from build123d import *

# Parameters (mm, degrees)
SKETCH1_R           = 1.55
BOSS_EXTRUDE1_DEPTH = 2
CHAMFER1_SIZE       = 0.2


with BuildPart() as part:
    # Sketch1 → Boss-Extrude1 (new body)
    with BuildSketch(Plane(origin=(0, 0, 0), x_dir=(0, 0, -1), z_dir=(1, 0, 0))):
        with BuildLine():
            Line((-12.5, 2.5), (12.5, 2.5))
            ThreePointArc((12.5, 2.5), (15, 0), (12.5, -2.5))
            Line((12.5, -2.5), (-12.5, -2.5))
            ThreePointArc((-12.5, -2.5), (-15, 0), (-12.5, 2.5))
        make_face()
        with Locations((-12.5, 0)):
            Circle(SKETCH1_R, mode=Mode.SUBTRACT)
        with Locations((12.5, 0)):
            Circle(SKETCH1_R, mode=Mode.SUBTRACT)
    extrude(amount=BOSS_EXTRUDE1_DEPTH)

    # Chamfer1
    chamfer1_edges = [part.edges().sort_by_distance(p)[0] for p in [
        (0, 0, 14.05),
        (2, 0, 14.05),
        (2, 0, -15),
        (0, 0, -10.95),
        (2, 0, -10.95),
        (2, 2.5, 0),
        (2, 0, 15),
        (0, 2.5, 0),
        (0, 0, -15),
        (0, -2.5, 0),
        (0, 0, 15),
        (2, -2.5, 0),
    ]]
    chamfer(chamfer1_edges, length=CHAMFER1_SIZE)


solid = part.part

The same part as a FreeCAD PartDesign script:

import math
import FreeCAD as App
import Part
import Sketcher

V = App.Vector
Q = App.Units.Quantity


def edges_at(feature, points):
    """Names of the edges that pass closest to the given points."""
    edges = feature.Shape.Edges
    near = lambda p: min(range(len(edges)), key=lambda i: edges[i].distToShape(Part.Vertex(*p))[0])
    return sorted({f"Edge{near(p) + 1}" for p in points})

doc = App.newDocument("Part")
params = doc.addObject("Spreadsheet::Sheet", "Params")
for row, (alias, value) in enumerate([
    ("sketch1_diameter", "3.1 mm"),
    ("sketch1_radius", "2.5 mm"),
    ("sketch1_height", "25 mm"),
    ("pad1_length", "2 mm"),
    ("chamfer_size", "0.2 mm"),
], start=1):
    params.set(f"A{row}", alias)
    params.set(f"B{row}", "=" + value)
    params.setAlias(f"B{row}", alias)

body = doc.addObject("PartDesign::Body", "Body")

# Sketch on YZ plane
sketch1 = body.newObject("Sketcher::SketchObject", "Sketch")
sketch1.AttachmentSupport = (doc.getObject("YZ_Plane"), [""])
sketch1.MapMode = "FlatFace"
sketch1.addGeometry([
    Part.LineSegment(V(2.5, -12.5, 0), V(2.5, 12.5, 0)),  # 0
    Part.ArcOfCircle(Part.Circle(V(0, 12.5, 0), V(0, 0, 1), 2.5), math.radians(0), math.radians(180)),  # 1
    Part.LineSegment(V(-2.5, 12.5, 0), V(-2.5, -12.5, 0)),  # 2
    Part.ArcOfCircle(Part.Circle(V(0, -12.5, 0), V(0, 0, 1), 2.5), math.radians(180), math.radians(360)),  # 3
    Part.Circle(V(0, -12.5, 0), V(0, 0, 1), 1.6),  # 4
    Part.Circle(V(0, 12.5, 0), V(0, 0, 1), 1.6),  # 5
], False)
sketch1.addConstraint([
    Sketcher.Constraint("Tangent", 0, 2, 1, 1),
    Sketcher.Constraint("Tangent", 1, 2, 2, 1),
    Sketcher.Constraint("Tangent", 2, 2, 3, 1),
    Sketcher.Constraint("Tangent", 3, 2, 0, 1),
    Sketcher.Constraint("Vertical", 0),
    Sketcher.Constraint("Vertical", 2),
    Sketcher.Constraint("Coincident", 4, 3, 3, 3),
    Sketcher.Constraint("Coincident", 5, 3, 1, 3),
    Sketcher.Constraint("Equal", 4, 5),
    Sketcher.Constraint("Symmetric", 1, 3, 3, 3, -1, 1),
    Sketcher.Constraint("Diameter", 4, Q("3.1 mm")),
    Sketcher.Constraint("Radius", 1, Q("2.5 mm")),
    Sketcher.Constraint("DistanceY", 0, 1, 0, 2, Q("25 mm")),
])
sketch1.setExpression("Constraints[10]", "Params.sketch1_diameter")
sketch1.setExpression("Constraints[11]", "Params.sketch1_radius")
sketch1.setExpression("Constraints[12]", "Params.sketch1_height")
pad1 = body.newObject("PartDesign::Pad", "Pad")
pad1.Profile = sketch1
pad1.setExpression("Length", "Params.pad1_length")
doc.recompute()

chamfer = body.newObject("PartDesign::Chamfer", "Chamfer")
chamfer.Base = (pad1, edges_at(pad1, [
    (0, 0, 14.05),
    (2, 0, 14.05),
    (2, 0, -15),
    (0, 0, -10.95),
    (2, 0, -10.95),
    (2, 2.5, 0),
    (2, 0, 15),
    (0, 2.5, 0),
    (0, 0, -15),
    (0, -2.5, 0),
    (0, 0, 15),
    (2, -2.5, 0),
]))
chamfer.setExpression("Size", "Params.chamfer_size")

doc.recompute()
